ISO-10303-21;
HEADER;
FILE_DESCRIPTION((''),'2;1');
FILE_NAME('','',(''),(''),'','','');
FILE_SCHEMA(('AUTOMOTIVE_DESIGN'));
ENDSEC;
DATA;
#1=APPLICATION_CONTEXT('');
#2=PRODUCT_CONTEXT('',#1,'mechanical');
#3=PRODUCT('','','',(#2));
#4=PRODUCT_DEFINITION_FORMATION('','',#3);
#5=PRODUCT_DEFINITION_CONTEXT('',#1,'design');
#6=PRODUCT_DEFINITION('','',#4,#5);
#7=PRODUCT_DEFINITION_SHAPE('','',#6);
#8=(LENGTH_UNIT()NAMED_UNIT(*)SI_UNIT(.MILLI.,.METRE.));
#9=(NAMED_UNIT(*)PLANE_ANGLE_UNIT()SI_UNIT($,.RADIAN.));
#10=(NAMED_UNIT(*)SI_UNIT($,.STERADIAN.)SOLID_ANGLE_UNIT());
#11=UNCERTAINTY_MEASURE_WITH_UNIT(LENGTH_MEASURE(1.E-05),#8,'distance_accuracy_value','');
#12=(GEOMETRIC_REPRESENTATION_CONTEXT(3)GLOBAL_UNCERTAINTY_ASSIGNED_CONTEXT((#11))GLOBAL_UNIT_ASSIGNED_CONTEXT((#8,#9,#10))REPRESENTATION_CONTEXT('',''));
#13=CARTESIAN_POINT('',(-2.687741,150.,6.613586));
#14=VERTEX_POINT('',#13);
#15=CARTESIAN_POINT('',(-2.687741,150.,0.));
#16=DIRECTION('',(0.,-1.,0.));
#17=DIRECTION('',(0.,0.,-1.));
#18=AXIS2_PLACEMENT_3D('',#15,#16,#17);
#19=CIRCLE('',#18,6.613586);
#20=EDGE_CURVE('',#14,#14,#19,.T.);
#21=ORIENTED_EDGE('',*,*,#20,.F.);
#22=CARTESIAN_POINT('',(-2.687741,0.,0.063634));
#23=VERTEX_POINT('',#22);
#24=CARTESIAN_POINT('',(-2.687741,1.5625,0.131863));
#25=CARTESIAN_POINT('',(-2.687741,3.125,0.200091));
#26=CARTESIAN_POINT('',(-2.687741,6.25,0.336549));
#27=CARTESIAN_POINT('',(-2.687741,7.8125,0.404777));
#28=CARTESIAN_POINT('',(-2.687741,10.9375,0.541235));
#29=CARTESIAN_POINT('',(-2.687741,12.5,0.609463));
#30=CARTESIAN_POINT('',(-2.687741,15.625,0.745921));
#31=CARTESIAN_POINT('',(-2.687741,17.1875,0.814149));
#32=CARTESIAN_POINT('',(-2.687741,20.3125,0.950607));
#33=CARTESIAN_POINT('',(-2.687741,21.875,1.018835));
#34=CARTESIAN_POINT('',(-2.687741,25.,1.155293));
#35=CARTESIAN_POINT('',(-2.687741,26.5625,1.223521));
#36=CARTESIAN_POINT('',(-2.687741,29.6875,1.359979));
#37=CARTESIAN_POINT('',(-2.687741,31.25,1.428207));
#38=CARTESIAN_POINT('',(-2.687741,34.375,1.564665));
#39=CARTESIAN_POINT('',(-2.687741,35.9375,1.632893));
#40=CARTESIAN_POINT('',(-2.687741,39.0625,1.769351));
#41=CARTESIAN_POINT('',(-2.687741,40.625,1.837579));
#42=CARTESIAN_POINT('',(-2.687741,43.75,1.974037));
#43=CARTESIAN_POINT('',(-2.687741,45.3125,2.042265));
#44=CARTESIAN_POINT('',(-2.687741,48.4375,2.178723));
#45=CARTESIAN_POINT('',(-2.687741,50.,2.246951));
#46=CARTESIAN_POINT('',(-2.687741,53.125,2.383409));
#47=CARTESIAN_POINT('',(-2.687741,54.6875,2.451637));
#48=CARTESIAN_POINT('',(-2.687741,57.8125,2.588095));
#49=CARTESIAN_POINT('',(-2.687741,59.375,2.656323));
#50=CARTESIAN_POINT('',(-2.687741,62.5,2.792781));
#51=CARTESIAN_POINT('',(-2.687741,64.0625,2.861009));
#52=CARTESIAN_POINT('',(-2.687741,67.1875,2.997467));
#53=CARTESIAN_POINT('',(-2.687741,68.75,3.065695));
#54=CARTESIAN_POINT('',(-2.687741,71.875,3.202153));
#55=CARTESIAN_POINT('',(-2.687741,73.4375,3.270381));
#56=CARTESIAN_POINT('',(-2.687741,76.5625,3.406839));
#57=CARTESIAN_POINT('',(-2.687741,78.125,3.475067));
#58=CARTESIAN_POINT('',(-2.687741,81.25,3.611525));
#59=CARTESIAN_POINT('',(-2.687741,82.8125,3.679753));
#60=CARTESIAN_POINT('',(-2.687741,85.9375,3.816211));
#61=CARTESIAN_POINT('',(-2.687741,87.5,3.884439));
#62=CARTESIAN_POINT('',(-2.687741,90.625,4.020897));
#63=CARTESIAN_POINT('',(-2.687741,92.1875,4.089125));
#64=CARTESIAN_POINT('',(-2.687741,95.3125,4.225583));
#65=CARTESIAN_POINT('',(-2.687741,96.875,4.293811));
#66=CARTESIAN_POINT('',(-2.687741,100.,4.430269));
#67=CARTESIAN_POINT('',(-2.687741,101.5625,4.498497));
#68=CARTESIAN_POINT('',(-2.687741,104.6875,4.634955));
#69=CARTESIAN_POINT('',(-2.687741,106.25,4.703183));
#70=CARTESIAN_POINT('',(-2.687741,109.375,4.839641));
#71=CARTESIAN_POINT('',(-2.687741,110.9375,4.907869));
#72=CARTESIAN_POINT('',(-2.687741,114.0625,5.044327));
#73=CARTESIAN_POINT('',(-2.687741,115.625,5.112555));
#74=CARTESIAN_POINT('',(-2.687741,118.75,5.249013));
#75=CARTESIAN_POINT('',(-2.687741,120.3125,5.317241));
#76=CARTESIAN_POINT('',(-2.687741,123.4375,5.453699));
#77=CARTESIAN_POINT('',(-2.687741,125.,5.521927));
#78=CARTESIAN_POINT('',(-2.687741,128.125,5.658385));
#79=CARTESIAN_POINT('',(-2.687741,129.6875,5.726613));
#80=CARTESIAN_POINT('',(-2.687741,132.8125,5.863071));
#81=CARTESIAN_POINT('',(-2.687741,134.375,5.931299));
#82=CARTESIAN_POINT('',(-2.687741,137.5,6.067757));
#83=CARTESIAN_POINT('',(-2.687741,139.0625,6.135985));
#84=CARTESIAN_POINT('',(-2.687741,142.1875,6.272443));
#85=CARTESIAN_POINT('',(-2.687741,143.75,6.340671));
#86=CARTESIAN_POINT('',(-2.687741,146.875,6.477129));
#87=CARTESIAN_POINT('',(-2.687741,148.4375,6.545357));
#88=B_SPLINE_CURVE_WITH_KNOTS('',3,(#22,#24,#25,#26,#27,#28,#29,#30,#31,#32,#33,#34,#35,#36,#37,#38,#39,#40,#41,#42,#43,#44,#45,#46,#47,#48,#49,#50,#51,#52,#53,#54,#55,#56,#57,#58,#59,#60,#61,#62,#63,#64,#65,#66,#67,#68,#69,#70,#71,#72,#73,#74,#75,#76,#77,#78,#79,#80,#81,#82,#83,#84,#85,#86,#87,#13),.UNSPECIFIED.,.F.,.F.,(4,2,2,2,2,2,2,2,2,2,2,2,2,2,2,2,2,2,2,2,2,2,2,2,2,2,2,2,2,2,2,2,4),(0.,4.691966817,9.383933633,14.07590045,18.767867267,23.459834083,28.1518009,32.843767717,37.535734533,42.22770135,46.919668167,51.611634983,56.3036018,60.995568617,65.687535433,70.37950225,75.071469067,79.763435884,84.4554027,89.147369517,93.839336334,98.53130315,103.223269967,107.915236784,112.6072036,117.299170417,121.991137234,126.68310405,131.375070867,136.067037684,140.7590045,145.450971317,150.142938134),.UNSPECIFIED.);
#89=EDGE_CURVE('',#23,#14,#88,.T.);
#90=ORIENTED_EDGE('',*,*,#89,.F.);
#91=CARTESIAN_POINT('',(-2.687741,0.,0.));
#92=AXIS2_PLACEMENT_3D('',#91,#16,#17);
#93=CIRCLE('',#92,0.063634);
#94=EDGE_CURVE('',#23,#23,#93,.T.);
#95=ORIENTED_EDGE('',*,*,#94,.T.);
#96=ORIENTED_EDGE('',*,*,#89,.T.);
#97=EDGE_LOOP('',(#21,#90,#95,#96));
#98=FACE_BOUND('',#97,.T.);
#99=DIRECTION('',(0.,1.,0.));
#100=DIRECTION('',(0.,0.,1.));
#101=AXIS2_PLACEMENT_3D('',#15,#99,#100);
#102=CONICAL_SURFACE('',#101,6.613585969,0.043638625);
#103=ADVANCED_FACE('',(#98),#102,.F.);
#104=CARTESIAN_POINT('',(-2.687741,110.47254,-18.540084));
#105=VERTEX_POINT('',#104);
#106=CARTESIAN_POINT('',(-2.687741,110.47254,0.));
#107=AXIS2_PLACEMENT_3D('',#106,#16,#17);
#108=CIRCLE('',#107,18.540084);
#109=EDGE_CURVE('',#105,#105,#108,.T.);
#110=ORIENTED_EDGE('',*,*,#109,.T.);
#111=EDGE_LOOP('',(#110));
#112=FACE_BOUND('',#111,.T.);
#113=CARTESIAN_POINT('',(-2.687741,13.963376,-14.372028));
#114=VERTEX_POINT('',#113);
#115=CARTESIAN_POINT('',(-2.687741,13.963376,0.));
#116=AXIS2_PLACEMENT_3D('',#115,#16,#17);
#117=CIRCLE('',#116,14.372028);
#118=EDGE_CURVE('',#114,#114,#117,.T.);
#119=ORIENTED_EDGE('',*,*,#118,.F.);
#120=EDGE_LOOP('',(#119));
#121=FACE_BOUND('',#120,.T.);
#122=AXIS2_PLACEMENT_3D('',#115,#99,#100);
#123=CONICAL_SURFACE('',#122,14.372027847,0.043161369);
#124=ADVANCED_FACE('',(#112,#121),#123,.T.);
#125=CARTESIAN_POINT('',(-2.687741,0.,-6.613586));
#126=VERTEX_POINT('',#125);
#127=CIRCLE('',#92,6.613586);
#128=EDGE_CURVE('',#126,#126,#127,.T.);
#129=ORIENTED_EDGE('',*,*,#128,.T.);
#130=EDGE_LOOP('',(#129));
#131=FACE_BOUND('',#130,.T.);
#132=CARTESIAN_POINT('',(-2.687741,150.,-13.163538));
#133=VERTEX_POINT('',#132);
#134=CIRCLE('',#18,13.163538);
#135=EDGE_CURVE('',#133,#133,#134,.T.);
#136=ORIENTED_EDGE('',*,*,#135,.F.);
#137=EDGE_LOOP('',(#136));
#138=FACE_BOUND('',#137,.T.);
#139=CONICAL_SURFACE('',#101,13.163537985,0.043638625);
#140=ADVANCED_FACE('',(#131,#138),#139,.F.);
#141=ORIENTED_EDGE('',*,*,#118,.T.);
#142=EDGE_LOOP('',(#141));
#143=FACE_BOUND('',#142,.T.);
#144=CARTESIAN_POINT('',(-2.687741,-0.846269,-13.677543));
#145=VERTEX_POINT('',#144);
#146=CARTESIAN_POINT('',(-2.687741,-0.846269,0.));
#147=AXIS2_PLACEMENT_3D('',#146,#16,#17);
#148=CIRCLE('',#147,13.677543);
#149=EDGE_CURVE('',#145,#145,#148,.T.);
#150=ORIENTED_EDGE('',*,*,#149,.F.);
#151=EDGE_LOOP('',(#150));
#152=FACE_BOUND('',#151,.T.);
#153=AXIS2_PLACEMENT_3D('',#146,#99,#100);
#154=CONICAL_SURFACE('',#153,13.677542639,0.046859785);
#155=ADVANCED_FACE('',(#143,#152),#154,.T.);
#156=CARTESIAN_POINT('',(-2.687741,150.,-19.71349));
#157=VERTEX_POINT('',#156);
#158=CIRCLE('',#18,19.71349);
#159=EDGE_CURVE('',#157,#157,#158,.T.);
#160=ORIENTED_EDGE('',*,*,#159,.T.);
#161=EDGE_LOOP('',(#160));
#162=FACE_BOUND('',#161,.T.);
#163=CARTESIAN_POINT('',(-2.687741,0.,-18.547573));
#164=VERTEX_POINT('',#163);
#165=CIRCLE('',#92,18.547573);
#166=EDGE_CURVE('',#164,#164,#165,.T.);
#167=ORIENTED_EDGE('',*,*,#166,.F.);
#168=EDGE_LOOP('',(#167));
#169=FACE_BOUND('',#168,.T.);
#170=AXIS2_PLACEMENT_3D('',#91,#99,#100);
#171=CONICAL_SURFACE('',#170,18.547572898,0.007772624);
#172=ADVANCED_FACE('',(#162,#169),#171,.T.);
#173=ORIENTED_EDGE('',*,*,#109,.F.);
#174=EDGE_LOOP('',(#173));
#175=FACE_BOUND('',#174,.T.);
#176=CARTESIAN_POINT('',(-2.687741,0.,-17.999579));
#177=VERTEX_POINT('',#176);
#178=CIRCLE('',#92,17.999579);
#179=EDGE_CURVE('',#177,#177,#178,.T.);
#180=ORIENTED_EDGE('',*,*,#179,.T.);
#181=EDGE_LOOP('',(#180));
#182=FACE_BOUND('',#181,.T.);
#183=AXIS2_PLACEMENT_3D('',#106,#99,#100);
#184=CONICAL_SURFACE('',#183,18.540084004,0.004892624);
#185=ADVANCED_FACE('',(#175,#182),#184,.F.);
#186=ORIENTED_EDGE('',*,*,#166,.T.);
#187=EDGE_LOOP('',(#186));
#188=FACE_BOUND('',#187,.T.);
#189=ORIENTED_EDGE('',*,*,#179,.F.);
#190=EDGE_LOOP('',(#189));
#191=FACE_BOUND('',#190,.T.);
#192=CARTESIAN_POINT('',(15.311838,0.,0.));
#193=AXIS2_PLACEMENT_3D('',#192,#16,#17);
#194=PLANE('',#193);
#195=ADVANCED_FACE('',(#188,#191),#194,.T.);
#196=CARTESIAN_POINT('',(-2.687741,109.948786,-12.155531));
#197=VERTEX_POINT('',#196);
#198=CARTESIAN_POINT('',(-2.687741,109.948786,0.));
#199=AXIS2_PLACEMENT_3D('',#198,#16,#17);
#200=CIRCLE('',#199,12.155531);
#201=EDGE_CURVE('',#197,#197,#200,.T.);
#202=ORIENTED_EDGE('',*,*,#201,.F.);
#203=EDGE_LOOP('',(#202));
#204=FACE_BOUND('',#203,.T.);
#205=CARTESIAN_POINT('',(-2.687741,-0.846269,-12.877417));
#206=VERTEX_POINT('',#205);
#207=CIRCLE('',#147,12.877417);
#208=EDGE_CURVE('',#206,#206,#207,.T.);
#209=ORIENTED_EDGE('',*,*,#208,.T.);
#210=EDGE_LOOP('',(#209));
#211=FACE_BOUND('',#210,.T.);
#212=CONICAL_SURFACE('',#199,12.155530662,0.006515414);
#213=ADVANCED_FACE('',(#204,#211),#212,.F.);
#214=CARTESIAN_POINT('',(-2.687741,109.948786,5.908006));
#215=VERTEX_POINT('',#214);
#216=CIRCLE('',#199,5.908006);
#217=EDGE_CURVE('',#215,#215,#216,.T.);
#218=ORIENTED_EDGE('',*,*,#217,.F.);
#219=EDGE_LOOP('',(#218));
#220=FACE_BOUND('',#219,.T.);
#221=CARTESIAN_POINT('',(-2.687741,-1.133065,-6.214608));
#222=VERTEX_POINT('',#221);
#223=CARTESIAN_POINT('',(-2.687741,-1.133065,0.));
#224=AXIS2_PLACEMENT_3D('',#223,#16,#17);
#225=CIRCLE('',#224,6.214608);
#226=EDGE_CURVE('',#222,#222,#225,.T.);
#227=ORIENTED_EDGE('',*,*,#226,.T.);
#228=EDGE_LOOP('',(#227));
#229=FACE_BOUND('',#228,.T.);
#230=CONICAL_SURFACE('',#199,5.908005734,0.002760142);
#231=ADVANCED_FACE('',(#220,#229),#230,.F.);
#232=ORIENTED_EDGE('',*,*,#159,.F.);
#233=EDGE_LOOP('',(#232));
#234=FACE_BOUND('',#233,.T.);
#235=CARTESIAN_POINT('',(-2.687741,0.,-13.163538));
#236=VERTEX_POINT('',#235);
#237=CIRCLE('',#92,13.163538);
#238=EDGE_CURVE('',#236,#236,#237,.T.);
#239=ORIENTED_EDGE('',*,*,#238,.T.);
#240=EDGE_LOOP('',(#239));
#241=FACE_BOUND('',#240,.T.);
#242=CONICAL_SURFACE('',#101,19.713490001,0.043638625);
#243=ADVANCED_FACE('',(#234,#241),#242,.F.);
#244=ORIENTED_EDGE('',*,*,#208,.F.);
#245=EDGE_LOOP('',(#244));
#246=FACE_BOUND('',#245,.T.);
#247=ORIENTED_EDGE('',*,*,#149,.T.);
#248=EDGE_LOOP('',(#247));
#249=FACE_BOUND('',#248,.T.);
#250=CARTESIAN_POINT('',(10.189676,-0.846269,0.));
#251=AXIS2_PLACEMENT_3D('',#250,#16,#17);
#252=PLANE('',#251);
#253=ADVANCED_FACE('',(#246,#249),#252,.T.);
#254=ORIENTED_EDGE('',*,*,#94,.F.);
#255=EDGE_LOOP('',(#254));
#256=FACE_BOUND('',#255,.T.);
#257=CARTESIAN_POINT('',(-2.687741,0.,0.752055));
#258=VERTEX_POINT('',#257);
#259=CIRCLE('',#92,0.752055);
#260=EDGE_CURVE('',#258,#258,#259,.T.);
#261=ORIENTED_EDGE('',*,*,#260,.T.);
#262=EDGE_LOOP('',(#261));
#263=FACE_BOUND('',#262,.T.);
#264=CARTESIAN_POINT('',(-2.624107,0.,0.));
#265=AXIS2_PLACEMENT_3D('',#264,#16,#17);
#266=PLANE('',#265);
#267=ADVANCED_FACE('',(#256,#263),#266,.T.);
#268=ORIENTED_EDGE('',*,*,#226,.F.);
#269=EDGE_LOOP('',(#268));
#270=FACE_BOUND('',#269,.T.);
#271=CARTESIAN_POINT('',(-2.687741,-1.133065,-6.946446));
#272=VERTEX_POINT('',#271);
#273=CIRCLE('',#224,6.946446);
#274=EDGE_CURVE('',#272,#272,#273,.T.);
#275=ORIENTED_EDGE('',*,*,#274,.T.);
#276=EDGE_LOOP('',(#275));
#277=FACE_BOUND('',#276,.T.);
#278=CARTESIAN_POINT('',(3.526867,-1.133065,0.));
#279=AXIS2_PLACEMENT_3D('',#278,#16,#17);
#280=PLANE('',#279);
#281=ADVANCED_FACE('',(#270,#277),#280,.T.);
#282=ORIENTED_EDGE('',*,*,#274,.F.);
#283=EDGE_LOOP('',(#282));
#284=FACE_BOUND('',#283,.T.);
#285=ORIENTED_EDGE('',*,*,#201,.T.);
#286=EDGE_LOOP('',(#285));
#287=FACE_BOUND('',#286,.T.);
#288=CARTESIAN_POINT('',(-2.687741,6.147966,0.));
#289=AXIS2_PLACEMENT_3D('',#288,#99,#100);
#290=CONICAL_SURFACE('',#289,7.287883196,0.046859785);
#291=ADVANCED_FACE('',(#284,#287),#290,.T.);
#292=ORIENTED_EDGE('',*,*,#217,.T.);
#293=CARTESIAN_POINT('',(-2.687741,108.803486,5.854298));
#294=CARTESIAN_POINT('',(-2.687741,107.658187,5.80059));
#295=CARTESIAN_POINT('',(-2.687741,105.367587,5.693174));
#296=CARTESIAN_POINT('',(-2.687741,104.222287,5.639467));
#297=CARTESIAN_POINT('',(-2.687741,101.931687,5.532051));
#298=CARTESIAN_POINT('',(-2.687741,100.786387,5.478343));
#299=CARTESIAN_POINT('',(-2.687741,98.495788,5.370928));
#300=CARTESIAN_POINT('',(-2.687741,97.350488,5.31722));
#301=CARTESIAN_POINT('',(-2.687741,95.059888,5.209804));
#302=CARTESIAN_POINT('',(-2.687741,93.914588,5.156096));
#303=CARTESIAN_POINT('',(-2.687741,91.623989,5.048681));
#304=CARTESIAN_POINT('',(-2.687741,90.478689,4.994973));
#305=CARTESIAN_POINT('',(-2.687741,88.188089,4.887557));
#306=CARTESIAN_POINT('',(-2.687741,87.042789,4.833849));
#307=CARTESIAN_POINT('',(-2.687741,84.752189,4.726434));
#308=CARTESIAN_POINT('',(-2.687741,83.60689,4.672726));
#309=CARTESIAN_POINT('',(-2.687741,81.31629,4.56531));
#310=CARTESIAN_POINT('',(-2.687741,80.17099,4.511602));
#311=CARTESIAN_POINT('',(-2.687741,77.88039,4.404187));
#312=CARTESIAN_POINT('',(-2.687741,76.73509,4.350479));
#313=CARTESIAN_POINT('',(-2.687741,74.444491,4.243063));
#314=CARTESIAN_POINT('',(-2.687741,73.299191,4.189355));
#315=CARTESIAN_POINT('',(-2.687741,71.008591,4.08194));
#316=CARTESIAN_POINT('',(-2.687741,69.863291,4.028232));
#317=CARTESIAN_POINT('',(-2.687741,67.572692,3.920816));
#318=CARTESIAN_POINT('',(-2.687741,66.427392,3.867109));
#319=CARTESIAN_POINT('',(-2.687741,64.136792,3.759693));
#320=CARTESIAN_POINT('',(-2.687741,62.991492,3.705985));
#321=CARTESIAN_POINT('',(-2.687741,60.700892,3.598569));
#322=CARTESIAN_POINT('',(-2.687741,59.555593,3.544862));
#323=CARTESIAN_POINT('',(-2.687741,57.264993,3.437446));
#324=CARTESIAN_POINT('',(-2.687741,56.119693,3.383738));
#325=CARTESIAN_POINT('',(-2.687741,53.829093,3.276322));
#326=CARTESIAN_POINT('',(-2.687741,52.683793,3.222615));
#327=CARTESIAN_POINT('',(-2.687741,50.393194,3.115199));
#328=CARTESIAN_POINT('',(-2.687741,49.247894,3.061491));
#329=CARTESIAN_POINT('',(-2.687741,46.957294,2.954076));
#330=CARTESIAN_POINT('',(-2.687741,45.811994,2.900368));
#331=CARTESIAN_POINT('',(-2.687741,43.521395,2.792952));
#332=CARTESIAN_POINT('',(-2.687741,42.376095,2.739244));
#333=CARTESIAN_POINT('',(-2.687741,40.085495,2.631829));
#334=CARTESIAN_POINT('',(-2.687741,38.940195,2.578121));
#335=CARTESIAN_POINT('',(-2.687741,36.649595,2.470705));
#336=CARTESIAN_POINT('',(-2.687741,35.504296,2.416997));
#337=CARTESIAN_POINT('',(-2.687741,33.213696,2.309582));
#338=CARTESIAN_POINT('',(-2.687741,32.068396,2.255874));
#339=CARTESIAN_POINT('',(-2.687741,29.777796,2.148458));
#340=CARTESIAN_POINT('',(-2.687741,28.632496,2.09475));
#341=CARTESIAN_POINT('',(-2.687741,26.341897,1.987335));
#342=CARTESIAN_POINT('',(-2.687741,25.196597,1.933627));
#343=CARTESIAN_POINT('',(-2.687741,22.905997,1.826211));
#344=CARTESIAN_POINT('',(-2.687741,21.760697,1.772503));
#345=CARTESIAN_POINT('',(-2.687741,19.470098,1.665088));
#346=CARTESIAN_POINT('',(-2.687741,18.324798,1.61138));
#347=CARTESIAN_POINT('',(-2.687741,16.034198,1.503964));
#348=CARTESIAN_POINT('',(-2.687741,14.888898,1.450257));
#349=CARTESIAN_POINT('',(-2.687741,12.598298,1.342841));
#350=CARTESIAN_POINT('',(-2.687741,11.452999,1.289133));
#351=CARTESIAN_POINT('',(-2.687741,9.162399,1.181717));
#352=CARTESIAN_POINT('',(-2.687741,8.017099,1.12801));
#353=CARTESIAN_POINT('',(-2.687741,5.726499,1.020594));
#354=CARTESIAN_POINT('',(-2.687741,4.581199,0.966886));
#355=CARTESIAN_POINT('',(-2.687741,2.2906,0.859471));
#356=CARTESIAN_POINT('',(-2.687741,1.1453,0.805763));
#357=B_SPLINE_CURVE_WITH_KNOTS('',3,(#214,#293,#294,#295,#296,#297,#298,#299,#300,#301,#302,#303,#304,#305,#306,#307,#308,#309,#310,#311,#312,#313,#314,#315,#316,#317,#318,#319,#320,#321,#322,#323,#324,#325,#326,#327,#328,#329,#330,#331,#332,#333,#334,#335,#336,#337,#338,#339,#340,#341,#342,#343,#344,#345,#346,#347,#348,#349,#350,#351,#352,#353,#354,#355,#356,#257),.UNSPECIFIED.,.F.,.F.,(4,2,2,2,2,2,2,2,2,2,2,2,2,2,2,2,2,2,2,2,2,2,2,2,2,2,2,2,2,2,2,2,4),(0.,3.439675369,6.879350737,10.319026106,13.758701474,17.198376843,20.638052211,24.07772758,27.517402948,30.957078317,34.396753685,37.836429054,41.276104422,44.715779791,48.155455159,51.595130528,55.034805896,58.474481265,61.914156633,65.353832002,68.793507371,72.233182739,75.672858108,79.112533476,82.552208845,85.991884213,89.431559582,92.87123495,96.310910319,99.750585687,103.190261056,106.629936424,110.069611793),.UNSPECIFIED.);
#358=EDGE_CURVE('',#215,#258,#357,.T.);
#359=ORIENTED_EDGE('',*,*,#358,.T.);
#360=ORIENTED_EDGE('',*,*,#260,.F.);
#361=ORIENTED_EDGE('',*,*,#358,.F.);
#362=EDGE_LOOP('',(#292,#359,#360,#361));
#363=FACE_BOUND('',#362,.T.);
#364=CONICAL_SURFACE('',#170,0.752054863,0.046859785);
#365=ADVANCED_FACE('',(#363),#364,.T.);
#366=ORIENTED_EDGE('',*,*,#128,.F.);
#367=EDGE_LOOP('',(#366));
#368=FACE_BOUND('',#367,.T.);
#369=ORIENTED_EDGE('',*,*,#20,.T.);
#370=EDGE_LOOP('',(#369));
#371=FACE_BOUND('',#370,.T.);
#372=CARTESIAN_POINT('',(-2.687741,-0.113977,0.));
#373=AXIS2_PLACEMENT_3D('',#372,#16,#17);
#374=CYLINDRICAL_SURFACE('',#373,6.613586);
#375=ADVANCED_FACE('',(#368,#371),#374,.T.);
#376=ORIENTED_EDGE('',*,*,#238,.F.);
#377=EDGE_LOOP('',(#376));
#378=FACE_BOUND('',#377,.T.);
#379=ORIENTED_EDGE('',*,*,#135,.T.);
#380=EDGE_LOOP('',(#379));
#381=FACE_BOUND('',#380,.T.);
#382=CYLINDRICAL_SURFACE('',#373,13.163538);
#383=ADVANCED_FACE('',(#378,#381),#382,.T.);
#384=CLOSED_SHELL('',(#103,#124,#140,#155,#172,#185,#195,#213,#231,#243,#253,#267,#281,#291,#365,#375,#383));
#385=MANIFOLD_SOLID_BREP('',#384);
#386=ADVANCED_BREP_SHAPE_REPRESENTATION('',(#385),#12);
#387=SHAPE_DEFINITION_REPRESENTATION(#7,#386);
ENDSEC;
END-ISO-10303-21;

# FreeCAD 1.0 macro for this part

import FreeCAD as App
import Part
import Sketcher
Q = App.Units.Quantity


def add_polygon(sketch, points):
    """Adds a closed chain of lines whose ends are joined by coincident constraints."""
    first, n = sketch.GeometryCount, len(points)
    for a, b in zip(points, points[1:] + points[:1]):
        sketch.addGeometry(Part.LineSegment(App.Vector(*a, 0), App.Vector(*b, 0)), False)
    for i in range(n):
        sketch.addConstraint(Sketcher.Constraint("Coincident", first + i, 2, first + (i + 1) % n, 1))

doc = App.newDocument("Part")
params = doc.addObject("Spreadsheet::Sheet", "Params")
for row, (alias, value) in enumerate([
    ("sketch1_height", "150 mm"),
    ("revolution_angle", "360 deg"),
], start=1):
    params.set(f"A{row}", alias)
    params.set(f"B{row}", "=" + value)
    params.setAlias(f"B{row}", alias)

body = doc.addObject("PartDesign::Body", "Body")

sketch1 = body.newObject("Sketcher::SketchObject", "Sketch")
sketch1.AttachmentSupport = (doc.getObject("XY_Plane"), [""])
sketch1.MapMode = "FlatFace"
add_polygon(sketch1, [(3.9, 150), (-2.6, 0), (-1.9, 0), (3.2, 109.9), (3.5, -1.1), (4.3, -1.1), (4.6, 6.1), (9.5, 109.9), (10.2, -0.8), (11, -0.8), (11.7, 14), (15.9, 110.5), (15.3, 0), (15.9, 0), (17, 150), (10.5, 0), (10.5, 150), (3.9, 0)])
sketch1.addGeometry(Part.LineSegment(App.Vector(-2.7, -1.1, 0), App.Vector(-2.7, 150, 0)), True)
sketch1.addConstraint([
    Sketcher.Constraint("Horizontal", 1),
    Sketcher.Constraint("Horizontal", 4),
    Sketcher.Constraint("Horizontal", 8),
    Sketcher.Constraint("Horizontal", 12),
    Sketcher.Constraint("Vertical", 15),
    Sketcher.Constraint("Vertical", 17),
    Sketcher.Constraint("Vertical", 18),
    Sketcher.Constraint("PointOnObject", 0, 2, -1),
    Sketcher.Constraint("PointOnObject", 11, 2, -1),
    Sketcher.Constraint("PointOnObject", 14, 2, -1),
    Sketcher.Constraint("PointOnObject", 16, 2, -1),
    Sketcher.Constraint("Parallel", 2, 5),
    Sketcher.Constraint("Parallel", 5, 6),
    Sketcher.Constraint("Parallel", 6, 9),
    Sketcher.Constraint("Parallel", 0, 14),
    Sketcher.Constraint("Parallel", 14, 16),
    Sketcher.Constraint("Horizontal", 2, 2, 6, 2),
    Sketcher.Constraint("Horizontal", 13, 2, 15, 2),
    Sketcher.Constraint("Horizontal", 15, 2, 17, 2),
    Sketcher.Constraint("Horizontal", 4, 2, 18, 1),
    Sketcher.Constraint("Horizontal", 17, 2, 18, 2),
    Sketcher.Constraint("DistanceY", 15, 1, 15, 2, Q("150 mm")),
    Sketcher.Constraint("DistanceX", 1, 1, 1, 2, Q("0.688421 mm")),
    Sketcher.Constraint("DistanceX", -1, 1, 8, 2, Q("10.989802 mm")),
    Sketcher.Constraint("DistanceX", 5, 2, 10, 2, Q("11.252201 mm")),
    Sketcher.Constraint("DistanceX", 17, 2, 10, 2, Q("11.926498 mm")),
    Sketcher.Constraint("Distance", 0, Q("150.142938 mm")),
    Sketcher.Constraint("Distance", 2, Q("110.069612 mm")),
    Sketcher.Constraint("Distance", 5, Q("7.289032 mm")),
    Sketcher.Constraint("Distance", 6, Q("103.91489 mm")),
    Sketcher.Constraint("Distance", 9, Q("14.82592 mm")),
    Sketcher.Constraint("Distance", 13, Q("150.004531 mm")),
    Sketcher.Constraint("DistanceX", 4, 1, 4, 2, Q("0.731838 mm")),
    Sketcher.Constraint("DistanceX", 8, 1, 8, 2, Q("0.800126 mm")),
    Sketcher.Constraint("DistanceX", 12, 1, 12, 2, Q("0.547994 mm")),
    Sketcher.Constraint("DistanceX", -1, 1, 6, 2, Q("9.46779 mm")),
    Sketcher.Constraint("DistanceY", 7, 2, -1, 1, Q("0.846269 mm")),
    Sketcher.Constraint("DistanceY", -1, 1, 10, 2, Q("110.47254 mm")),
    Sketcher.Constraint("DistanceX", -1, 1, 11, 2, Q("15.311838 mm")),
    Sketcher.Constraint("DistanceX", 18, 1, -1, 1, Q("2.687741 mm")),
])
sketch1.setExpression("Constraints[39]", "Params.sketch1_height")
revolution = body.newObject("PartDesign::Revolution", "Revolution")
revolution.Profile = sketch1
revolution.ReferenceAxis = (sketch1, ["Axis0"])
revolution.setExpression("Angle", "Params.revolution_angle")

doc.recompute()
